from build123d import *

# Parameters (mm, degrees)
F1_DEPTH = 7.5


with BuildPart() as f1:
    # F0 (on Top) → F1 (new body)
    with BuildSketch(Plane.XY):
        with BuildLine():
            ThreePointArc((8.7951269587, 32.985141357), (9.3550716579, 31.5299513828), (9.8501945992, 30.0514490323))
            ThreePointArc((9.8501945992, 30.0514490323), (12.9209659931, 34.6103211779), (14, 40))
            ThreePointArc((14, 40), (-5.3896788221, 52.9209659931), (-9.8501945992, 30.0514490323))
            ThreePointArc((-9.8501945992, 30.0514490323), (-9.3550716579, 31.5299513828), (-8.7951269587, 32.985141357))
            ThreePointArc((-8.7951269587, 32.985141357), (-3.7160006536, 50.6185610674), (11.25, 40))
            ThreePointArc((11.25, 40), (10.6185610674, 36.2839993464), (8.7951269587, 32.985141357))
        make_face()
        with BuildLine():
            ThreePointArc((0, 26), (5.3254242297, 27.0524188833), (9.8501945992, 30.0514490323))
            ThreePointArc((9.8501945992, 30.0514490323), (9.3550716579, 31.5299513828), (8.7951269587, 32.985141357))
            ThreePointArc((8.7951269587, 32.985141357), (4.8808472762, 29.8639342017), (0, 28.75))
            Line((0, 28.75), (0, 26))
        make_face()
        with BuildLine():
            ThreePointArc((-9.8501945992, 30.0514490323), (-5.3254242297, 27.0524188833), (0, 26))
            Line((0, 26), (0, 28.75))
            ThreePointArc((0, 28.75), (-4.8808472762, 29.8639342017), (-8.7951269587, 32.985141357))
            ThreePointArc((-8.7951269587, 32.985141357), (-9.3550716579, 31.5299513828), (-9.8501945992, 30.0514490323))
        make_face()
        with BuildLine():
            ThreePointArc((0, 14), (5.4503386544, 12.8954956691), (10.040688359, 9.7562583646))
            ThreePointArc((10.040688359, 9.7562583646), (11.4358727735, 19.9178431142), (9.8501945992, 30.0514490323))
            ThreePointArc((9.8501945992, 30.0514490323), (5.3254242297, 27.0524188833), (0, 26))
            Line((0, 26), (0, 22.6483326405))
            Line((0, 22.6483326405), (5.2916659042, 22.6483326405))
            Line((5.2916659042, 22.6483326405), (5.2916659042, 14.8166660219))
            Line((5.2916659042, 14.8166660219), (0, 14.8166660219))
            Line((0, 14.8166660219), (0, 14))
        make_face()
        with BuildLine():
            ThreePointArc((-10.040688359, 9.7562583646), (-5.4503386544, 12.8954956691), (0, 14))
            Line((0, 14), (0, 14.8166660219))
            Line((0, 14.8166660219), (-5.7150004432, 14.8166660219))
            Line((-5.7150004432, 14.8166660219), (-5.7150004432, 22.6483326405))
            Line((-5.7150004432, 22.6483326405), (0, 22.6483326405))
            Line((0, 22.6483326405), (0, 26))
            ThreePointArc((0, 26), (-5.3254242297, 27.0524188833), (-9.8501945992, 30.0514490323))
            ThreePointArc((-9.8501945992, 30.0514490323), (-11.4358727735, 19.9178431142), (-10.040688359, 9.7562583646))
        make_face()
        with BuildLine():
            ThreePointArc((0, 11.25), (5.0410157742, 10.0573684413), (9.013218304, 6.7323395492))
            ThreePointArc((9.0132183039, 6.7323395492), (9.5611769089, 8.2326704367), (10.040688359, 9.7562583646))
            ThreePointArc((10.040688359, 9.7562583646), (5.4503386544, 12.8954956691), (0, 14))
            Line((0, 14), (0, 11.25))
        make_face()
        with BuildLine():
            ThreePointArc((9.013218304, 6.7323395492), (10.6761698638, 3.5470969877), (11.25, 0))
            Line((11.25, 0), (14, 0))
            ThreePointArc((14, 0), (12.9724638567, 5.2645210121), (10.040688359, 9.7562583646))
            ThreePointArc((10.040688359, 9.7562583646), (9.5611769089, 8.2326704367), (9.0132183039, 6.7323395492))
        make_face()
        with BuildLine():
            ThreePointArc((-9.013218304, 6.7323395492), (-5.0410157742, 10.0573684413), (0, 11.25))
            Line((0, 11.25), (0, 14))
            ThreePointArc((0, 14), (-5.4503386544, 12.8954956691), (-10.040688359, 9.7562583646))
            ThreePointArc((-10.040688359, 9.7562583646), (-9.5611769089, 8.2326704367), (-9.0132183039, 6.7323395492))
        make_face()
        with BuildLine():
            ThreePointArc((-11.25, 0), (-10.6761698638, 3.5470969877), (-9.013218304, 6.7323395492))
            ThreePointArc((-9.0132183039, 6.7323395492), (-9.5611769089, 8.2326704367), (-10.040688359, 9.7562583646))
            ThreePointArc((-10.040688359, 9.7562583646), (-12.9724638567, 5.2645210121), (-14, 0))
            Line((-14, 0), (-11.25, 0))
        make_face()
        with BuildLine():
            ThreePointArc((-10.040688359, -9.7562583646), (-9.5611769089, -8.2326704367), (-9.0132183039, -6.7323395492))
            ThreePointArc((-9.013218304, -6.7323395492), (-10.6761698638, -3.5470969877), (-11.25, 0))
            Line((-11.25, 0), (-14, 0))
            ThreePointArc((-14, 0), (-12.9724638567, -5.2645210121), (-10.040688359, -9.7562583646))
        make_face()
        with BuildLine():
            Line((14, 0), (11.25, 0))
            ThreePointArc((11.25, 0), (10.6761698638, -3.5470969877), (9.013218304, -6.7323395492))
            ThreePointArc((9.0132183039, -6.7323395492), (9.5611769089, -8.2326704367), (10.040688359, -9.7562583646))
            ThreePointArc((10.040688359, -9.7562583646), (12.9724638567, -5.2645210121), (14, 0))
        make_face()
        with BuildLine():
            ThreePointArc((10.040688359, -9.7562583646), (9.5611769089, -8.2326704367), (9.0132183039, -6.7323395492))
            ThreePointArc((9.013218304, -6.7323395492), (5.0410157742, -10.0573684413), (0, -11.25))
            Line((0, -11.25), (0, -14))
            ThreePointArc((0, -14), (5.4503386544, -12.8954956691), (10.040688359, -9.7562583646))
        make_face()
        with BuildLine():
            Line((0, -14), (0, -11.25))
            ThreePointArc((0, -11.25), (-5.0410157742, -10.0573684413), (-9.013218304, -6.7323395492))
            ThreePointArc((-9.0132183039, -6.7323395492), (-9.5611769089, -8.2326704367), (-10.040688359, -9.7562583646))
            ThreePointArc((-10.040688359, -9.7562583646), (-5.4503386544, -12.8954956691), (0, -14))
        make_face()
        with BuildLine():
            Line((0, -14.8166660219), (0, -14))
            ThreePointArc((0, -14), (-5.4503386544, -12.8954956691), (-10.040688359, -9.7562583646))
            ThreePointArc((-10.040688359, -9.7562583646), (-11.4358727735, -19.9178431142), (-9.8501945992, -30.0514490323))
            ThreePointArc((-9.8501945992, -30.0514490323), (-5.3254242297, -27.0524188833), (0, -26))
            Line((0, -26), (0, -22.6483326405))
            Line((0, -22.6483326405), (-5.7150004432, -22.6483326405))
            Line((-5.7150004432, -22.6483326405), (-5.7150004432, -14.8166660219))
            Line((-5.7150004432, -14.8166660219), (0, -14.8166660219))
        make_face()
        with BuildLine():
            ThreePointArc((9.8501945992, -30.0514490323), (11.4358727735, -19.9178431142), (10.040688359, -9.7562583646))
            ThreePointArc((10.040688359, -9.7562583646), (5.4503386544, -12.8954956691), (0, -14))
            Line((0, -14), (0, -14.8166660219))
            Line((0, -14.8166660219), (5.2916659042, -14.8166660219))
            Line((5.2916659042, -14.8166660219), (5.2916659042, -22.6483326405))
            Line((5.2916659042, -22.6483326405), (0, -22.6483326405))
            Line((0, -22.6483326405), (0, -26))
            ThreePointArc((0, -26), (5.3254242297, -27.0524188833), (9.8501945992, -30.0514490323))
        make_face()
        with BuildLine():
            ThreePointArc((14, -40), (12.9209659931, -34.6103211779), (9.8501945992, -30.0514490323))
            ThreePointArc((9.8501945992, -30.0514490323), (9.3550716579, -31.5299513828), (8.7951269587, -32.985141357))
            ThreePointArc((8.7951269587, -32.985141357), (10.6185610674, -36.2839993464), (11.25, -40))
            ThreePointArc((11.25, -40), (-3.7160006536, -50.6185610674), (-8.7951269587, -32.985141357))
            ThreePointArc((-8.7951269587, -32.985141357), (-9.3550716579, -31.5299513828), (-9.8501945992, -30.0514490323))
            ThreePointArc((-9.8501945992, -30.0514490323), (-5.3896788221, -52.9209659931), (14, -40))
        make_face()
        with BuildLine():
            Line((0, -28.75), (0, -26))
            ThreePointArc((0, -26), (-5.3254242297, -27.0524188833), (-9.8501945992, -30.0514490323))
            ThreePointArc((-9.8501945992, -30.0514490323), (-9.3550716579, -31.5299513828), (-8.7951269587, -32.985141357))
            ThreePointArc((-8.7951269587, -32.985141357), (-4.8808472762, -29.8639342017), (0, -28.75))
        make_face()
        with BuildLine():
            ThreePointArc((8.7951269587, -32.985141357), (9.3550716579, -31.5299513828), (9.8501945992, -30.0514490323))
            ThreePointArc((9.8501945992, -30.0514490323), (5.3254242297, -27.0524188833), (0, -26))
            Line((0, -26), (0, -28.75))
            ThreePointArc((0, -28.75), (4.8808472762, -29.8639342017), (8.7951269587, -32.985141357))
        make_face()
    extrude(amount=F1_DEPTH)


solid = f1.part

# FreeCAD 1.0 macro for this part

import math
import FreeCAD as App
import Part
import Sketcher
Q = App.Units.Quantity


def add_polygon(sketch, points):
    """Adds a closed chain of lines whose ends are joined by coincident constraints."""
    first, n = sketch.GeometryCount, len(points)
    for a, b in zip(points, points[1:] + points[:1]):
        sketch.addGeometry(Part.LineSegment(App.Vector(*a, 0), App.Vector(*b, 0)), False)
    for i in range(n):
        sketch.addConstraint(Sketcher.Constraint("Coincident", first + i, 2, first + (i + 1) % n, 1))

doc = App.newDocument("Part")
body = doc.addObject("PartDesign::Body", "Body")

# Sketch on XY plane
sketch1 = body.newObject("Sketcher::SketchObject", "Sketch")
sketch1.AttachmentSupport = (doc.getObject("XY_Plane"), [""])
sketch1.MapMode = "FlatFace"
sketch1.addGeometry(Part.ArcOfCircle(Part.Circle(App.Vector(0, -40, 0), App.Vector(0, 0, 1), 14), math.radians(0), math.radians(45.284632)), False)  # 0
sketch1.addGeometry(Part.ArcOfCircle(Part.Circle(App.Vector(-23.854273, -19.586604, 0), App.Vector(0, 0, 1), 35.291701), math.radians(-17.24896), math.radians(16.173418)), False)  # 1
sketch1.addGeometry(Part.ArcOfCircle(Part.Circle(App.Vector(0, 0, 0), App.Vector(0, 0, 1), 14), math.radians(-44.176867), math.radians(0)), False)  # 2
sketch1.addGeometry(Part.ArcOfCircle(Part.Circle(App.Vector(0, 0, 0), App.Vector(0, 0, 1), 14), math.radians(0), math.radians(44.176867)), False)  # 3
sketch1.addGeometry(Part.ArcOfCircle(Part.Circle(App.Vector(-23.854273, 19.586604, 0), App.Vector(0, 0, 1), 35.291701), math.radians(-16.173418), math.radians(17.24896)), False)  # 4
sketch1.addGeometry(Part.ArcOfCircle(Part.Circle(App.Vector(0, 40, 0), App.Vector(0, 0, 1), 14), math.radians(-45.284632), math.radians(0)), False)  # 5
sketch1.addGeometry(Part.ArcOfCircle(Part.Circle(App.Vector(0, 40, 0), App.Vector(0, 0, 1), 14), math.radians(0), math.radians(225.284632)), False)  # 6
sketch1.addGeometry(Part.ArcOfCircle(Part.Circle(App.Vector(23.854273, 19.586604, 0), App.Vector(0, 0, 1), 35.291701), math.radians(162.75104), math.radians(196.173418)), False)  # 7
sketch1.addGeometry(Part.ArcOfCircle(Part.Circle(App.Vector(0, 0, 0), App.Vector(0, 0, 1), 14), math.radians(135.823133), math.radians(180)), False)  # 8
sketch1.addGeometry(Part.ArcOfCircle(Part.Circle(App.Vector(0, 0, 0), App.Vector(0, 0, 1), 14), math.radians(180), math.radians(224.176867)), False)  # 9
sketch1.addGeometry(Part.ArcOfCircle(Part.Circle(App.Vector(23.854273, -19.586604, 0), App.Vector(0, 0, 1), 35.291701), math.radians(163.826582), math.radians(197.24896)), False)  # 10
sketch1.addGeometry(Part.ArcOfCircle(Part.Circle(App.Vector(0, -40, 0), App.Vector(0, 0, 1), 14), math.radians(134.715368), math.radians(360)), False)  # 11
add_polygon(sketch1, [(-5.715, -22.648333), (-5.715, -14.816666), (5.291666, -14.816666), (5.291666, -22.648333)])  # lines 12-15
sketch1.addGeometry(Part.ArcOfCircle(Part.Circle(App.Vector(0, -40, 0), App.Vector(0, 0, 1), 11.25), math.radians(90), math.radians(141.424673)), False)  # 16
sketch1.addGeometry(Part.ArcOfCircle(Part.Circle(App.Vector(0, -40, 0), App.Vector(0, 0, 1), 11.25), math.radians(38.575327), math.radians(90)), False)  # 17
sketch1.addGeometry(Part.ArcOfCircle(Part.Circle(App.Vector(0, -40, 0), App.Vector(0, 0, 1), 11.25), math.radians(0), math.radians(38.575327)), False)  # 18
sketch1.addGeometry(Part.ArcOfCircle(Part.Circle(App.Vector(0, -40, 0), App.Vector(0, 0, 1), 11.25), math.radians(141.424673), math.radians(360)), False)  # 19
add_polygon(sketch1, [(5.291666, 22.648333), (5.291666, 14.816666), (-5.715, 14.816666), (-5.715, 22.648333)])  # lines 20-23
sketch1.addGeometry(Part.ArcOfCircle(Part.Circle(App.Vector(0, 0, 0), App.Vector(0, 0, 1), 11.25), math.radians(180), math.radians(216.75755)), False)  # 24
sketch1.addGeometry(Part.ArcOfCircle(Part.Circle(App.Vector(0, 0, 0), App.Vector(0, 0, 1), 11.25), math.radians(143.24245), math.radians(180)), False)  # 25
sketch1.addGeometry(Part.ArcOfCircle(Part.Circle(App.Vector(0, 0, 0), App.Vector(0, 0, 1), 11.25), math.radians(90), math.radians(143.24245)), False)  # 26
sketch1.addGeometry(Part.ArcOfCircle(Part.Circle(App.Vector(0, 0, 0), App.Vector(0, 0, 1), 11.25), math.radians(36.75755), math.radians(90)), False)  # 27
sketch1.addGeometry(Part.ArcOfCircle(Part.Circle(App.Vector(0, 0, 0), App.Vector(0, 0, 1), 11.25), math.radians(0), math.radians(36.75755)), False)  # 28
sketch1.addGeometry(Part.ArcOfCircle(Part.Circle(App.Vector(0, 0, 0), App.Vector(0, 0, 1), 11.25), math.radians(-36.75755), math.radians(0)), False)  # 29
sketch1.addGeometry(Part.ArcOfCircle(Part.Circle(App.Vector(0, 0, 0), App.Vector(0, 0, 1), 11.25), math.radians(-90), math.radians(-36.75755)), False)  # 30
sketch1.addGeometry(Part.ArcOfCircle(Part.Circle(App.Vector(0, 0, 0), App.Vector(0, 0, 1), 11.25), math.radians(-143.24245), math.radians(-90)), False)  # 31
sketch1.addGeometry(Part.ArcOfCircle(Part.Circle(App.Vector(0, 40, 0), App.Vector(0, 0, 1), 11.25), math.radians(0), math.radians(218.575327)), False)  # 32
sketch1.addGeometry(Part.ArcOfCircle(Part.Circle(App.Vector(0, 40, 0), App.Vector(0, 0, 1), 11.25), math.radians(-38.575327), math.radians(0)), False)  # 33
sketch1.addGeometry(Part.ArcOfCircle(Part.Circle(App.Vector(0, 40, 0), App.Vector(0, 0, 1), 11.25), math.radians(-90), math.radians(-38.575327)), False)  # 34
sketch1.addGeometry(Part.ArcOfCircle(Part.Circle(App.Vector(0, 40, 0), App.Vector(0, 0, 1), 11.25), math.radians(-141.424673), math.radians(-90)), False)  # 35
sketch1.addConstraint(Sketcher.Constraint("Coincident", 0, 2, 1, 1))
sketch1.addConstraint(Sketcher.Constraint("Coincident", 1, 2, 2, 1))
sketch1.addConstraint(Sketcher.Constraint("Tangent", 2, 2, 3, 1))
sketch1.addConstraint(Sketcher.Constraint("Coincident", 3, 2, 4, 1))
sketch1.addConstraint(Sketcher.Constraint("Coincident", 4, 2, 5, 1))
sketch1.addConstraint(Sketcher.Constraint("Tangent", 5, 2, 6, 1))
sketch1.addConstraint(Sketcher.Constraint("Coincident", 6, 2, 7, 1))
sketch1.addConstraint(Sketcher.Constraint("Coincident", 7, 2, 8, 1))
sketch1.addConstraint(Sketcher.Constraint("Tangent", 8, 2, 9, 1))
sketch1.addConstraint(Sketcher.Constraint("Coincident", 9, 2, 10, 1))
sketch1.addConstraint(Sketcher.Constraint("Coincident", 10, 2, 11, 1))
sketch1.addConstraint(Sketcher.Constraint("Tangent", 11, 2, 0, 1))
sketch1.addConstraint(Sketcher.Constraint("Tangent", 16, 1, 17, 2))
sketch1.addConstraint(Sketcher.Constraint("Tangent", 17, 1, 18, 2))
sketch1.addConstraint(Sketcher.Constraint("Tangent", 18, 1, 19, 2))
sketch1.addConstraint(Sketcher.Constraint("Tangent", 19, 1, 16, 2))
sketch1.addConstraint(Sketcher.Constraint("Tangent", 24, 1, 25, 2))
sketch1.addConstraint(Sketcher.Constraint("Tangent", 25, 1, 26, 2))
sketch1.addConstraint(Sketcher.Constraint("Tangent", 26, 1, 27, 2))
sketch1.addConstraint(Sketcher.Constraint("Tangent", 27, 1, 28, 2))
sketch1.addConstraint(Sketcher.Constraint("Tangent", 28, 1, 29, 2))
sketch1.addConstraint(Sketcher.Constraint("Tangent", 29, 1, 30, 2))
sketch1.addConstraint(Sketcher.Constraint("Tangent", 30, 1, 31, 2))
sketch1.addConstraint(Sketcher.Constraint("Tangent", 31, 1, 24, 2))
sketch1.addConstraint(Sketcher.Constraint("Tangent", 32, 1, 33, 2))
sketch1.addConstraint(Sketcher.Constraint("Tangent", 33, 1, 34, 2))
sketch1.addConstraint(Sketcher.Constraint("Tangent", 34, 1, 35, 2))
sketch1.addConstraint(Sketcher.Constraint("Tangent", 35, 1, 32, 2))
sketch1.addConstraint(Sketcher.Constraint("Vertical", 12))
sketch1.addConstraint(Sketcher.Constraint("Horizontal", 13))
sketch1.addConstraint(Sketcher.Constraint("Vertical", 14))
sketch1.addConstraint(Sketcher.Constraint("Horizontal", 15))
sketch1.addConstraint(Sketcher.Constraint("Vertical", 20))
sketch1.addConstraint(Sketcher.Constraint("Horizontal", 21))
sketch1.addConstraint(Sketcher.Constraint("Vertical", 22))
sketch1.addConstraint(Sketcher.Constraint("Horizontal", 23))
sketch1.addConstraint(Sketcher.Constraint("Coincident", 2, 3, -1, 1))
sketch1.addConstraint(Sketcher.Constraint("Coincident", 8, 3, -1, 1))
sketch1.addConstraint(Sketcher.Constraint("Coincident", 24, 3, -1, 1))
sketch1.addConstraint(Sketcher.Constraint("Coincident", 26, 3, -1, 1))
sketch1.addConstraint(Sketcher.Constraint("Coincident", 28, 3, -1, 1))
sketch1.addConstraint(Sketcher.Constraint("Coincident", 16, 3, 0, 3))
sketch1.addConstraint(Sketcher.Constraint("Coincident", 32, 3, 5, 3))
sketch1.addConstraint(Sketcher.Constraint("Equal", 0, 2))
sketch1.addConstraint(Sketcher.Constraint("Equal", 2, 3))
sketch1.addConstraint(Sketcher.Constraint("Equal", 1, 4))
sketch1.addConstraint(Sketcher.Constraint("Equal", 3, 5))
sketch1.addConstraint(Sketcher.Constraint("Equal", 5, 6))
sketch1.addConstraint(Sketcher.Constraint("Equal", 4, 7))
sketch1.addConstraint(Sketcher.Constraint("Equal", 6, 8))
sketch1.addConstraint(Sketcher.Constraint("Equal", 8, 9))
sketch1.addConstraint(Sketcher.Constraint("Equal", 7, 10))
sketch1.addConstraint(Sketcher.Constraint("Equal", 9, 11))
sketch1.addConstraint(Sketcher.Constraint("Equal", 16, 17))
sketch1.addConstraint(Sketcher.Constraint("Equal", 19, 24))
sketch1.addConstraint(Sketcher.Constraint("Equal", 28, 29))
sketch1.addConstraint(Sketcher.Constraint("Equal", 31, 32))
sketch1.addConstraint(Sketcher.Constraint("Equal", 32, 33))
sketch1.addConstraint(Sketcher.Constraint("Symmetric", 0, 3, 5, 3, -1, 1))
sketch1.addConstraint(Sketcher.Constraint("Symmetric", 1, 3, 7, 3, -1, 1))
sketch1.addConstraint(Sketcher.Constraint("Symmetric", 4, 3, 10, 3, -1, 1))
sketch1.addConstraint(Sketcher.Constraint("Symmetric", 4, 3, 7, 3, -2))
sketch1.addConstraint(Sketcher.Constraint("Symmetric", 17, 1, 19, 1, -2))
sketch1.addConstraint(Sketcher.Constraint("Symmetric", 13, 2, 20, 2, -1))
sketch1.addConstraint(Sketcher.Constraint("Symmetric", 15, 2, 22, 2, -1))
sketch1.addConstraint(Sketcher.Constraint("PointOnObject", 2, 2, -1))
sketch1.addConstraint(Sketcher.Constraint("PointOnObject", 8, 2, -1))
sketch1.addConstraint(Sketcher.Constraint("PointOnObject", 16, 1, -2))
sketch1.addConstraint(Sketcher.Constraint("PointOnObject", 24, 1, -1))
sketch1.addConstraint(Sketcher.Constraint("PointOnObject", 26, 1, -2))
sketch1.addConstraint(Sketcher.Constraint("PointOnObject", 28, 1, -1))
sketch1.addConstraint(Sketcher.Constraint("PointOnObject", 30, 1, -2))
sketch1.addConstraint(Sketcher.Constraint("PointOnObject", 34, 1, -2))
sketch1.addConstraint(Sketcher.Constraint("Horizontal", 35, 3, 5, 2))
sketch1.addConstraint(Sketcher.Constraint("Horizontal", 19, 3, 11, 2))
sketch1.addConstraint(Sketcher.Constraint("Horizontal", 11, 2, 18, 1))
sketch1.addConstraint(Sketcher.Constraint("Horizontal", 25, 1, 27, 1))
sketch1.addConstraint(Sketcher.Constraint("Horizontal", 29, 1, 31, 1))
sketch1.addConstraint(Sketcher.Constraint("Horizontal", 5, 2, 32, 1))
sketch1.addConstraint(Sketcher.Constraint("Horizontal", 33, 1, 35, 1))
sketch1.addConstraint(Sketcher.Constraint("Vertical", 27, 1, 29, 1))
sketch1.addConstraint(Sketcher.Constraint("Vertical", 17, 1, 33, 1))
sketch1.addConstraint(Sketcher.Constraint("Radius", 0, Q("14 mm")))
sketch1.addConstraint(Sketcher.Constraint("Radius", 16, Q("11.25 mm")))
sketch1.addConstraint(Sketcher.Constraint("DistanceY", 0, 3, -1, 1, Q("40 mm")))
sketch1.addConstraint(Sketcher.Constraint("Radius", 1, Q("35.291701 mm")))
sketch1.addConstraint(Sketcher.Constraint("DistanceX", 12, 2, -1, 1, Q("5.715 mm")))
sketch1.addConstraint(Sketcher.Constraint("DistanceX", 13, 1, 13, 2, Q("11.006666 mm")))
sketch1.addConstraint(Sketcher.Constraint("DistanceY", 12, 1, 12, 2, Q("7.831667 mm")))
sketch1.addConstraint(Sketcher.Constraint("DistanceY", 0, 2, -1, 1, Q("30.051449 mm")))
sketch1.addConstraint(Sketcher.Constraint("DistanceX", -1, 1, 1, 2, Q("10.040688 mm")))
sketch1.addConstraint(Sketcher.Constraint("DistanceY", 17, 1, -1, 1, Q("32.985141 mm")))
sketch1.addConstraint(Sketcher.Constraint("DistanceX", 25, 1, -1, 1, Q("9.013218 mm")))
sketch1.addConstraint(Sketcher.Constraint("DistanceY", 12, 2, -1, 1, Q("14.816666 mm")))
pad1 = body.newObject("PartDesign::Pad", "Pad")
pad1.Profile = sketch1
pad1.Length = 7.5

doc.recompute()
